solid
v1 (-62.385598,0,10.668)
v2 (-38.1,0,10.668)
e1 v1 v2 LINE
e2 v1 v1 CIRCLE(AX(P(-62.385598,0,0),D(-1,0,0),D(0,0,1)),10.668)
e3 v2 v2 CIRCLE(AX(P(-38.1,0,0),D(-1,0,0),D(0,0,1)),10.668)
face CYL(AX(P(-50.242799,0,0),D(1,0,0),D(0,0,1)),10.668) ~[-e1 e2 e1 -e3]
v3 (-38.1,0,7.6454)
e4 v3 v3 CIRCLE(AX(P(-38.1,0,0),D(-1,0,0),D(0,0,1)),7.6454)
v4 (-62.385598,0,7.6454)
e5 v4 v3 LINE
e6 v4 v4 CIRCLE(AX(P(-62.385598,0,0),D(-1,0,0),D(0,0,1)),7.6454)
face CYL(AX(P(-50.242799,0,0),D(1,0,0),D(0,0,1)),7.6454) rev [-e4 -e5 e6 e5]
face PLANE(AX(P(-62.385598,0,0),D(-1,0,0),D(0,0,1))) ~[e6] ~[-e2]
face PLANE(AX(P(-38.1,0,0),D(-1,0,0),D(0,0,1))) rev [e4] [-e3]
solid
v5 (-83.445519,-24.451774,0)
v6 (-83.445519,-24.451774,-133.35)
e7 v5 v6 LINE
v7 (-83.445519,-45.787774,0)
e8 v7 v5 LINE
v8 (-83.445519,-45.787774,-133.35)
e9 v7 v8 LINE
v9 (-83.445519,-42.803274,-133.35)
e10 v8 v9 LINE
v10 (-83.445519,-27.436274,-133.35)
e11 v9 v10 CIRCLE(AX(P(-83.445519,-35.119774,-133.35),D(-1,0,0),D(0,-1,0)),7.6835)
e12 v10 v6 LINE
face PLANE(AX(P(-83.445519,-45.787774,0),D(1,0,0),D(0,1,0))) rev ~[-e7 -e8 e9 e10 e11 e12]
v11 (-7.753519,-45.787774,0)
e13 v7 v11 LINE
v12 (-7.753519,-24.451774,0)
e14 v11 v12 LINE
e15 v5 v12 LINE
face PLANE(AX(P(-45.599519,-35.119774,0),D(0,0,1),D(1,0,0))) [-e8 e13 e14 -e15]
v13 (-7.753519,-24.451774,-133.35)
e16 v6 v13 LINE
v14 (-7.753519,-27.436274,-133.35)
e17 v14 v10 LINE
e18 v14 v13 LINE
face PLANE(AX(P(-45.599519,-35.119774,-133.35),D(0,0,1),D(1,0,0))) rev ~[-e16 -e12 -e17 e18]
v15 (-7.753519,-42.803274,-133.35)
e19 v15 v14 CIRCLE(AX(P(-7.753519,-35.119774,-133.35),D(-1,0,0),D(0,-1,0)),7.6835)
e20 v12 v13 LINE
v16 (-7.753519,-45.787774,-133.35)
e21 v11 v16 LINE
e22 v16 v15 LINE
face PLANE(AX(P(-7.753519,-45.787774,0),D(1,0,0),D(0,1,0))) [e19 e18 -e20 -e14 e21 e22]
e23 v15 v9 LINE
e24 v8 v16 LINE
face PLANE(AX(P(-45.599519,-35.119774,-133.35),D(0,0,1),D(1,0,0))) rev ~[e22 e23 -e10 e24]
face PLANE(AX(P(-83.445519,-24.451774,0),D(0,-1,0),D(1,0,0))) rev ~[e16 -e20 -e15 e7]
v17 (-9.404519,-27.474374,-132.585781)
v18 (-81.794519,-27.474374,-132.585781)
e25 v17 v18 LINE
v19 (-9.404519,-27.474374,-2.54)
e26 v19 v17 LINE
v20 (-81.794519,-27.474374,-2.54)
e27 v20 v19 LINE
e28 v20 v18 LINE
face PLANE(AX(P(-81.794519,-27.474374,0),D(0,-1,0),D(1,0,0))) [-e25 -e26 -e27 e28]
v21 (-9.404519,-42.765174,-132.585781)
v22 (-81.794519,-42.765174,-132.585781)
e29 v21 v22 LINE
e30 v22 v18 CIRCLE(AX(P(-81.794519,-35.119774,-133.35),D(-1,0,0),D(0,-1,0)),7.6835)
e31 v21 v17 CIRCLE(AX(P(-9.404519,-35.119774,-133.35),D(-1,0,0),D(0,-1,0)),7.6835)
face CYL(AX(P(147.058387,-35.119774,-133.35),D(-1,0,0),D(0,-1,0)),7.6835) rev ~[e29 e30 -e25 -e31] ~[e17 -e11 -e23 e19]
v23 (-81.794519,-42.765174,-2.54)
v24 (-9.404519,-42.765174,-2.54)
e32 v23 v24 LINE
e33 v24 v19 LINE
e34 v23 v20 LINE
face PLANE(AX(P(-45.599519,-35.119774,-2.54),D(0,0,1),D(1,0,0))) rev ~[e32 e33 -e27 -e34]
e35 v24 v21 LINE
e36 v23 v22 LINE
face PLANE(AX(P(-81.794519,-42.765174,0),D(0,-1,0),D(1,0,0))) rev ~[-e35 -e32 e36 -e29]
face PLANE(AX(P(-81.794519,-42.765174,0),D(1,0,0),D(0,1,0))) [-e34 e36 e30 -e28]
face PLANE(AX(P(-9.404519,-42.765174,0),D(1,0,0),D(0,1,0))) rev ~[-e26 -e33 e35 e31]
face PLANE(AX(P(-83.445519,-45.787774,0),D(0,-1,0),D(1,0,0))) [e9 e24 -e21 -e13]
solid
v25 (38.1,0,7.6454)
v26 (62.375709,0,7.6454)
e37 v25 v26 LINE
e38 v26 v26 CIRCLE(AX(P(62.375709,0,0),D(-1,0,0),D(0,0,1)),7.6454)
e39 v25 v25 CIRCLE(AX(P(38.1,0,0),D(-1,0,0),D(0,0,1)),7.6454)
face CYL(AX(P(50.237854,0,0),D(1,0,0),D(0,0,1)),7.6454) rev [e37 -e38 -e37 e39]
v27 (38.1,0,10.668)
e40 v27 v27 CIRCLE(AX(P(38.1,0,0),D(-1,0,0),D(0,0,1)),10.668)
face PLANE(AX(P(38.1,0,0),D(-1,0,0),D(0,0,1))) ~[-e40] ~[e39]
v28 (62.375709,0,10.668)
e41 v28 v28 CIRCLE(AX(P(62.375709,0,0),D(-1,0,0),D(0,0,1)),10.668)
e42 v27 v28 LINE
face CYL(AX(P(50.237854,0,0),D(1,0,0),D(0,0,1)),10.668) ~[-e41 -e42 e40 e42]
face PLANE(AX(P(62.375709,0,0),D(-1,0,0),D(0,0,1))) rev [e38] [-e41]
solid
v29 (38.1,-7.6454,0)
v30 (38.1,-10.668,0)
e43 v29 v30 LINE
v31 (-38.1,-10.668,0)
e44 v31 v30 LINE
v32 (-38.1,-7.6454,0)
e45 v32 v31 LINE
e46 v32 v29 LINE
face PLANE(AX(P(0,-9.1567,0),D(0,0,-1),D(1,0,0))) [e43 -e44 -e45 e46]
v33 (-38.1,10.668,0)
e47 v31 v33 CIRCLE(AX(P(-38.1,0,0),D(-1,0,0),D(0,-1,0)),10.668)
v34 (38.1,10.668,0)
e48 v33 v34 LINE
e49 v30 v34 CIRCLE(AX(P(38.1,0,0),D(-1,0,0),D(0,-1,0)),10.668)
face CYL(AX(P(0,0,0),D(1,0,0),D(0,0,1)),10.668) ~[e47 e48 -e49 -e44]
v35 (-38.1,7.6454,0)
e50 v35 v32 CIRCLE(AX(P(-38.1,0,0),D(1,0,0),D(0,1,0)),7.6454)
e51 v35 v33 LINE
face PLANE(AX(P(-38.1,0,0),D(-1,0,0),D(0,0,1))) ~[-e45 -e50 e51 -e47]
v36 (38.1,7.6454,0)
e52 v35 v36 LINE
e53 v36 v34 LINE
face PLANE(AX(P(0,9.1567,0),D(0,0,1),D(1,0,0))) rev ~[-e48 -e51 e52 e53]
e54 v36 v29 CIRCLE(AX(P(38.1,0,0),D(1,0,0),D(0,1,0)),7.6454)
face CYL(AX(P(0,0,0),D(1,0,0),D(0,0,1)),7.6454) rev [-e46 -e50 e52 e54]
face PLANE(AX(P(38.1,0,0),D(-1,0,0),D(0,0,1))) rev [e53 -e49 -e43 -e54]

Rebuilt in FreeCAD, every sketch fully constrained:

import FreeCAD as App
import Part
import Sketcher

V = App.Vector
Q = App.Units.Quantity

doc = App.newDocument("Part")
body = doc.addObject("PartDesign::Body", "Body")

sketch1 = body.newObject("Sketcher::SketchObject", "Sketch")
sketch1.AttachmentSupport = (doc.getObject("XZ_Plane"), [""])
sketch1.MapMode = "FlatFace"
sketch1.addGeometry(Part.LineSegment(V(-38.1, 10.7, 0), V(-38.1, 7.6, 0)), False)
sketch1.addGeometry(Part.LineSegment(V(-38.1, 7.6, 0), V(38.1, 7.6, 0)), False)
sketch1.addGeometry(Part.LineSegment(V(38.1, 7.6, 0), V(38.1, 10.7, 0)), False)
sketch1.addGeometry(Part.LineSegment(V(38.1, 10.7, 0), V(-38.1, 10.7, 0)), False)
sketch1.addConstraint(Sketcher.Constraint("Coincident", 0, 2, 1, 1))
sketch1.addConstraint(Sketcher.Constraint("Coincident", 1, 2, 2, 1))
sketch1.addConstraint(Sketcher.Constraint("Coincident", 2, 2, 3, 1))
sketch1.addConstraint(Sketcher.Constraint("Coincident", 3, 2, 0, 1))
sketch1.addConstraint(Sketcher.Constraint("Vertical", 0))
sketch1.addConstraint(Sketcher.Constraint("Horizontal", 1))
sketch1.addConstraint(Sketcher.Constraint("Vertical", 2))
sketch1.addConstraint(Sketcher.Constraint("Horizontal", 3))
sketch1.addConstraint(Sketcher.Constraint("DistanceX", 1, 1, 1, 2, Q("3 in")))
sketch1.addConstraint(Sketcher.Constraint("DistanceX", 0, 2, -1, 1, Q("1.5 in")))
sketch1.addConstraint(Sketcher.Constraint("DistanceY", 0, 2, 0, 1, Q("0.119 in")))
sketch1.addConstraint(Sketcher.Constraint("DistanceY", -1, 1, 2, 2, Q("0.42 in")))
revolution = body.newObject("PartDesign::Revolution", "Revolution")
revolution.Profile = sketch1
revolution.ReferenceAxis = (sketch1, ["H_Axis"])
revolution.Angle = 90

sketch2 = body.newObject("Sketcher::SketchObject", "Sketch001")
sketch2.AttachmentSupport = (doc.getObject("XZ_Plane"), [""])
sketch2.MapMode = "FlatFace"
sketch2.addGeometry(Part.LineSegment(V(-38.1, 10.7, 0), V(-38.1, 7.6, 0)), False)
sketch2.addGeometry(Part.LineSegment(V(-38.1, 7.6, 0), V(38.1, 7.6, 0)), False)
sketch2.addGeometry(Part.LineSegment(V(38.1, 7.6, 0), V(38.1, 10.7, 0)), False)
sketch2.addGeometry(Part.LineSegment(V(38.1, 10.7, 0), V(-38.1, 10.7, 0)), False)
sketch2.addConstraint(Sketcher.Constraint("Coincident", 0, 2, 1, 1))
sketch2.addConstraint(Sketcher.Constraint("Coincident", 1, 2, 2, 1))
sketch2.addConstraint(Sketcher.Constraint("Coincident", 2, 2, 3, 1))
sketch2.addConstraint(Sketcher.Constraint("Coincident", 3, 2, 0, 1))
sketch2.addConstraint(Sketcher.Constraint("Vertical", 0))
sketch2.addConstraint(Sketcher.Constraint("Horizontal", 1))
sketch2.addConstraint(Sketcher.Constraint("Vertical", 2))
sketch2.addConstraint(Sketcher.Constraint("Horizontal", 3))
sketch2.addConstraint(Sketcher.Constraint("DistanceX", 1, 1, 1, 2, Q("3 in")))
sketch2.addConstraint(Sketcher.Constraint("DistanceX", 0, 2, -1, 1, Q("1.5 in")))
sketch2.addConstraint(Sketcher.Constraint("DistanceY", 0, 2, 0, 1, Q("0.119 in")))
sketch2.addConstraint(Sketcher.Constraint("DistanceY", -1, 1, 2, 2, Q("0.42 in")))
revolution2 = body.newObject("PartDesign::Revolution", "Revolution001")
revolution2.Profile = sketch2
revolution2.ReferenceAxis = (sketch2, ["H_Axis"])
revolution2.Angle = 90
revolution2.Reversed = True
body2 = doc.addObject("PartDesign::Body", "Body001")
body2.AllowCompound = True

sketch3 = body2.newObject("Sketcher::SketchObject", "Sketch002")
sketch3.AttachmentSupport = (doc.getObject("XZ_Plane001"), [""])
sketch3.MapMode = "FlatFace"
sketch3.addGeometry(Part.LineSegment(V(38.1, 10.7, 0), V(38.1, 7.6, 0)), False)
sketch3.addGeometry(Part.LineSegment(V(38.1, 7.6, 0), V(62.4, 7.6, 0)), False)
sketch3.addGeometry(Part.LineSegment(V(62.4, 7.6, 0), V(62.4, 10.7, 0)), False)
sketch3.addGeometry(Part.LineSegment(V(62.4, 10.7, 0), V(38.1, 10.7, 0)), False)
sketch3.addGeometry(Part.LineSegment(V(-62.4, 10.7, 0), V(-62.4, 7.6, 0)), False)
sketch3.addGeometry(Part.LineSegment(V(-62.4, 7.6, 0), V(-38.1, 7.6, 0)), False)
sketch3.addGeometry(Part.LineSegment(V(-38.1, 7.6, 0), V(-38.1, 10.7, 0)), False)
sketch3.addGeometry(Part.LineSegment(V(-38.1, 10.7, 0), V(-62.4, 10.7, 0)), False)
sketch3.addConstraint(Sketcher.Constraint("Coincident", 0, 2, 1, 1))
sketch3.addConstraint(Sketcher.Constraint("Coincident", 1, 2, 2, 1))
sketch3.addConstraint(Sketcher.Constraint("Coincident", 2, 2, 3, 1))
sketch3.addConstraint(Sketcher.Constraint("Coincident", 3, 2, 0, 1))
sketch3.addConstraint(Sketcher.Constraint("Coincident", 4, 2, 5, 1))
sketch3.addConstraint(Sketcher.Constraint("Coincident", 5, 2, 6, 1))
sketch3.addConstraint(Sketcher.Constraint("Coincident", 6, 2, 7, 1))
sketch3.addConstraint(Sketcher.Constraint("Coincident", 7, 2, 4, 1))
sketch3.addConstraint(Sketcher.Constraint("Vertical", 0))
sketch3.addConstraint(Sketcher.Constraint("Horizontal", 1))
sketch3.addConstraint(Sketcher.Constraint("Vertical", 2))
sketch3.addConstraint(Sketcher.Constraint("Horizontal", 3))
sketch3.addConstraint(Sketcher.Constraint("Vertical", 4))
sketch3.addConstraint(Sketcher.Constraint("Horizontal", 5))
sketch3.addConstraint(Sketcher.Constraint("Vertical", 6))
sketch3.addConstraint(Sketcher.Constraint("Horizontal", 7))
sketch3.addConstraint(Sketcher.Constraint("Symmetric", 0, 2, 5, 2, -2))
sketch3.addConstraint(Sketcher.Constraint("Horizontal", 3, 2, 6, 2))
sketch3.addConstraint(Sketcher.Constraint("DistanceX", 5, 2, 0, 2, Q("3 in")))
sketch3.addConstraint(Sketcher.Constraint("DistanceY", 0, 2, 0, 1, Q("0.119 in")))
sketch3.addConstraint(Sketcher.Constraint("DistanceY", -1, 1, 2, 2, Q("0.42 in")))
sketch3.addConstraint(Sketcher.Constraint("DistanceX", 5, 1, 5, 2, 24.285598))
sketch3.addConstraint(Sketcher.Constraint("DistanceX", 1, 1, 1, 2, 24.275709))
revolution3 = body2.newObject("PartDesign::Revolution", "Revolution002")
revolution3.Profile = sketch3
revolution3.ReferenceAxis = (sketch3, ["H_Axis"])
revolution3.Angle = 360
body3 = doc.addObject("PartDesign::Body", "Body002")

sketch4 = body3.newObject("Sketcher::SketchObject", "Sketch003")
sketch4.AttachmentSupport = (doc.getObject("XY_Plane002"), [""])
sketch4.MapMode = "FlatFace"
sketch4.addGeometry(Part.LineSegment(V(-83, -24, 0), V(-83, -46, 0)), False)
sketch4.addGeometry(Part.LineSegment(V(-83, -46, 0), V(-8, -46, 0)), False)
sketch4.addGeometry(Part.LineSegment(V(-8, -46, 0), V(-8, -24, 0)), False)
sketch4.addGeometry(Part.LineSegment(V(-8, -24, 0), V(-83, -24, 0)), False)
sketch4.addGeometry(Part.LineSegment(V(-9, -43, 0), V(-82, -43, 0)), False)
sketch4.addGeometry(Part.LineSegment(V(-82, -43, 0), V(-82, -27, 0)), False)
sketch4.addGeometry(Part.LineSegment(V(-82, -27, 0), V(-9, -27, 0)), False)
sketch4.addGeometry(Part.LineSegment(V(-9, -27, 0), V(-9, -43, 0)), False)
sketch4.addConstraint(Sketcher.Constraint("Coincident", 0, 2, 1, 1))
sketch4.addConstraint(Sketcher.Constraint("Coincident", 1, 2, 2, 1))
sketch4.addConstraint(Sketcher.Constraint("Coincident", 2, 2, 3, 1))
sketch4.addConstraint(Sketcher.Constraint("Coincident", 3, 2, 0, 1))
sketch4.addConstraint(Sketcher.Constraint("Coincident", 4, 2, 5, 1))
sketch4.addConstraint(Sketcher.Constraint("Coincident", 5, 2, 6, 1))
sketch4.addConstraint(Sketcher.Constraint("Coincident", 6, 2, 7, 1))
sketch4.addConstraint(Sketcher.Constraint("Coincident", 7, 2, 4, 1))
sketch4.addConstraint(Sketcher.Constraint("Vertical", 0))
sketch4.addConstraint(Sketcher.Constraint("Horizontal", 1))
sketch4.addConstraint(Sketcher.Constraint("Vertical", 2))
sketch4.addConstraint(Sketcher.Constraint("Horizontal", 3))
sketch4.addConstraint(Sketcher.Constraint("Horizontal", 4))
sketch4.addConstraint(Sketcher.Constraint("Vertical", 5))
sketch4.addConstraint(Sketcher.Constraint("Horizontal", 6))
sketch4.addConstraint(Sketcher.Constraint("Vertical", 7))
sketch4.addConstraint(Sketcher.Constraint("DistanceX", 1, 1, 1, 2, Q("2.98 in")))
sketch4.addConstraint(Sketcher.Constraint("DistanceX", 4, 2, 4, 1, Q("2.85 in")))
sketch4.addConstraint(Sketcher.Constraint("DistanceY", 0, 2, 0, 1, Q("0.84 in")))
sketch4.addConstraint(Sketcher.Constraint("DistanceY", 5, 1, 5, 2, Q("0.602 in")))
sketch4.addConstraint(Sketcher.Constraint("DistanceX", 0, 2, 4, 2, Q("0.065 in")))
sketch4.addConstraint(Sketcher.Constraint("DistanceY", 0, 2, 4, 2, Q("0.119 in")))
sketch4.addConstraint(Sketcher.Constraint("DistanceX", 0, 2, -1, 1, 83.445519))
sketch4.addConstraint(Sketcher.Constraint("DistanceY", 0, 2, -1, 1, 45.787774))
pad1 = body3.newObject("PartDesign::Pad", "Pad")
pad1.Profile = sketch4
pad1.Length = Q("5.25 in")
pad1.Reversed = True

sketch5 = body3.newObject("Sketcher::SketchObject", "Sketch004")
sketch5.AttachmentSupport = (doc.getObject("XY_Plane002"), [""])
sketch5.MapMode = "FlatFace"
sketch5.addGeometry(Part.LineSegment(V(-82, -27, 0), V(-82, -43, 0)), False)
sketch5.addGeometry(Part.LineSegment(V(-82, -43, 0), V(-9, -43, 0)), False)
sketch5.addGeometry(Part.LineSegment(V(-9, -43, 0), V(-9, -27, 0)), False)
sketch5.addGeometry(Part.LineSegment(V(-9, -27, 0), V(-82, -27, 0)), False)
sketch5.addConstraint(Sketcher.Constraint("Coincident", 0, 2, 1, 1))
sketch5.addConstraint(Sketcher.Constraint("Coincident", 1, 2, 2, 1))
sketch5.addConstraint(Sketcher.Constraint("Coincident", 2, 2, 3, 1))
sketch5.addConstraint(Sketcher.Constraint("Coincident", 3, 2, 0, 1))
sketch5.addConstraint(Sketcher.Constraint("Vertical", 0))
sketch5.addConstraint(Sketcher.Constraint("Horizontal", 1))
sketch5.addConstraint(Sketcher.Constraint("Vertical", 2))
sketch5.addConstraint(Sketcher.Constraint("Horizontal", 3))
sketch5.addConstraint(Sketcher.Constraint("DistanceX", 1, 1, 1, 2, Q("2.85 in")))
sketch5.addConstraint(Sketcher.Constraint("DistanceY", 0, 2, 0, 1, Q("0.602 in")))
sketch5.addConstraint(Sketcher.Constraint("DistanceX", 0, 2, -1, 1, 81.794519))
sketch5.addConstraint(Sketcher.Constraint("DistanceY", 0, 2, -1, 1, 42.765174))
pad2 = body3.newObject("PartDesign::Pad", "Pad001")
pad2.Profile = sketch5
pad2.Length = Q("0.1 in")
pad2.Reversed = True

sketch6 = body3.newObject("Sketcher::SketchObject", "Sketch005")
sketch6.AttachmentSupport = (doc.getObject("YZ_Plane002"), [""])
sketch6.MapMode = "FlatFace"
sketch6.AttachmentOffset = App.Placement(V(0, 0, -7.753519), App.Rotation())
sketch6.addGeometry(Part.Circle(V(-35, -133, 0), V(0, 0, 1), 8), False)
sketch6.addConstraint(Sketcher.Constraint("Diameter", 0, Q("0.605 in")))
sketch6.addConstraint(Sketcher.Constraint("DistanceY", 0, 3, -1, 1, Q("5.25 in")))
sketch6.addConstraint(Sketcher.Constraint("DistanceX", 0, 3, -1, 1, 35.119774))
doc.recompute()
hole = body3.newObject("PartDesign::Hole", "Hole")
hole.Profile = sketch6
hole.ThreadType = "None"
hole.Diameter = Q("0.605 in")
hole.DepthType = "ThroughAll"

doc.recompute()
